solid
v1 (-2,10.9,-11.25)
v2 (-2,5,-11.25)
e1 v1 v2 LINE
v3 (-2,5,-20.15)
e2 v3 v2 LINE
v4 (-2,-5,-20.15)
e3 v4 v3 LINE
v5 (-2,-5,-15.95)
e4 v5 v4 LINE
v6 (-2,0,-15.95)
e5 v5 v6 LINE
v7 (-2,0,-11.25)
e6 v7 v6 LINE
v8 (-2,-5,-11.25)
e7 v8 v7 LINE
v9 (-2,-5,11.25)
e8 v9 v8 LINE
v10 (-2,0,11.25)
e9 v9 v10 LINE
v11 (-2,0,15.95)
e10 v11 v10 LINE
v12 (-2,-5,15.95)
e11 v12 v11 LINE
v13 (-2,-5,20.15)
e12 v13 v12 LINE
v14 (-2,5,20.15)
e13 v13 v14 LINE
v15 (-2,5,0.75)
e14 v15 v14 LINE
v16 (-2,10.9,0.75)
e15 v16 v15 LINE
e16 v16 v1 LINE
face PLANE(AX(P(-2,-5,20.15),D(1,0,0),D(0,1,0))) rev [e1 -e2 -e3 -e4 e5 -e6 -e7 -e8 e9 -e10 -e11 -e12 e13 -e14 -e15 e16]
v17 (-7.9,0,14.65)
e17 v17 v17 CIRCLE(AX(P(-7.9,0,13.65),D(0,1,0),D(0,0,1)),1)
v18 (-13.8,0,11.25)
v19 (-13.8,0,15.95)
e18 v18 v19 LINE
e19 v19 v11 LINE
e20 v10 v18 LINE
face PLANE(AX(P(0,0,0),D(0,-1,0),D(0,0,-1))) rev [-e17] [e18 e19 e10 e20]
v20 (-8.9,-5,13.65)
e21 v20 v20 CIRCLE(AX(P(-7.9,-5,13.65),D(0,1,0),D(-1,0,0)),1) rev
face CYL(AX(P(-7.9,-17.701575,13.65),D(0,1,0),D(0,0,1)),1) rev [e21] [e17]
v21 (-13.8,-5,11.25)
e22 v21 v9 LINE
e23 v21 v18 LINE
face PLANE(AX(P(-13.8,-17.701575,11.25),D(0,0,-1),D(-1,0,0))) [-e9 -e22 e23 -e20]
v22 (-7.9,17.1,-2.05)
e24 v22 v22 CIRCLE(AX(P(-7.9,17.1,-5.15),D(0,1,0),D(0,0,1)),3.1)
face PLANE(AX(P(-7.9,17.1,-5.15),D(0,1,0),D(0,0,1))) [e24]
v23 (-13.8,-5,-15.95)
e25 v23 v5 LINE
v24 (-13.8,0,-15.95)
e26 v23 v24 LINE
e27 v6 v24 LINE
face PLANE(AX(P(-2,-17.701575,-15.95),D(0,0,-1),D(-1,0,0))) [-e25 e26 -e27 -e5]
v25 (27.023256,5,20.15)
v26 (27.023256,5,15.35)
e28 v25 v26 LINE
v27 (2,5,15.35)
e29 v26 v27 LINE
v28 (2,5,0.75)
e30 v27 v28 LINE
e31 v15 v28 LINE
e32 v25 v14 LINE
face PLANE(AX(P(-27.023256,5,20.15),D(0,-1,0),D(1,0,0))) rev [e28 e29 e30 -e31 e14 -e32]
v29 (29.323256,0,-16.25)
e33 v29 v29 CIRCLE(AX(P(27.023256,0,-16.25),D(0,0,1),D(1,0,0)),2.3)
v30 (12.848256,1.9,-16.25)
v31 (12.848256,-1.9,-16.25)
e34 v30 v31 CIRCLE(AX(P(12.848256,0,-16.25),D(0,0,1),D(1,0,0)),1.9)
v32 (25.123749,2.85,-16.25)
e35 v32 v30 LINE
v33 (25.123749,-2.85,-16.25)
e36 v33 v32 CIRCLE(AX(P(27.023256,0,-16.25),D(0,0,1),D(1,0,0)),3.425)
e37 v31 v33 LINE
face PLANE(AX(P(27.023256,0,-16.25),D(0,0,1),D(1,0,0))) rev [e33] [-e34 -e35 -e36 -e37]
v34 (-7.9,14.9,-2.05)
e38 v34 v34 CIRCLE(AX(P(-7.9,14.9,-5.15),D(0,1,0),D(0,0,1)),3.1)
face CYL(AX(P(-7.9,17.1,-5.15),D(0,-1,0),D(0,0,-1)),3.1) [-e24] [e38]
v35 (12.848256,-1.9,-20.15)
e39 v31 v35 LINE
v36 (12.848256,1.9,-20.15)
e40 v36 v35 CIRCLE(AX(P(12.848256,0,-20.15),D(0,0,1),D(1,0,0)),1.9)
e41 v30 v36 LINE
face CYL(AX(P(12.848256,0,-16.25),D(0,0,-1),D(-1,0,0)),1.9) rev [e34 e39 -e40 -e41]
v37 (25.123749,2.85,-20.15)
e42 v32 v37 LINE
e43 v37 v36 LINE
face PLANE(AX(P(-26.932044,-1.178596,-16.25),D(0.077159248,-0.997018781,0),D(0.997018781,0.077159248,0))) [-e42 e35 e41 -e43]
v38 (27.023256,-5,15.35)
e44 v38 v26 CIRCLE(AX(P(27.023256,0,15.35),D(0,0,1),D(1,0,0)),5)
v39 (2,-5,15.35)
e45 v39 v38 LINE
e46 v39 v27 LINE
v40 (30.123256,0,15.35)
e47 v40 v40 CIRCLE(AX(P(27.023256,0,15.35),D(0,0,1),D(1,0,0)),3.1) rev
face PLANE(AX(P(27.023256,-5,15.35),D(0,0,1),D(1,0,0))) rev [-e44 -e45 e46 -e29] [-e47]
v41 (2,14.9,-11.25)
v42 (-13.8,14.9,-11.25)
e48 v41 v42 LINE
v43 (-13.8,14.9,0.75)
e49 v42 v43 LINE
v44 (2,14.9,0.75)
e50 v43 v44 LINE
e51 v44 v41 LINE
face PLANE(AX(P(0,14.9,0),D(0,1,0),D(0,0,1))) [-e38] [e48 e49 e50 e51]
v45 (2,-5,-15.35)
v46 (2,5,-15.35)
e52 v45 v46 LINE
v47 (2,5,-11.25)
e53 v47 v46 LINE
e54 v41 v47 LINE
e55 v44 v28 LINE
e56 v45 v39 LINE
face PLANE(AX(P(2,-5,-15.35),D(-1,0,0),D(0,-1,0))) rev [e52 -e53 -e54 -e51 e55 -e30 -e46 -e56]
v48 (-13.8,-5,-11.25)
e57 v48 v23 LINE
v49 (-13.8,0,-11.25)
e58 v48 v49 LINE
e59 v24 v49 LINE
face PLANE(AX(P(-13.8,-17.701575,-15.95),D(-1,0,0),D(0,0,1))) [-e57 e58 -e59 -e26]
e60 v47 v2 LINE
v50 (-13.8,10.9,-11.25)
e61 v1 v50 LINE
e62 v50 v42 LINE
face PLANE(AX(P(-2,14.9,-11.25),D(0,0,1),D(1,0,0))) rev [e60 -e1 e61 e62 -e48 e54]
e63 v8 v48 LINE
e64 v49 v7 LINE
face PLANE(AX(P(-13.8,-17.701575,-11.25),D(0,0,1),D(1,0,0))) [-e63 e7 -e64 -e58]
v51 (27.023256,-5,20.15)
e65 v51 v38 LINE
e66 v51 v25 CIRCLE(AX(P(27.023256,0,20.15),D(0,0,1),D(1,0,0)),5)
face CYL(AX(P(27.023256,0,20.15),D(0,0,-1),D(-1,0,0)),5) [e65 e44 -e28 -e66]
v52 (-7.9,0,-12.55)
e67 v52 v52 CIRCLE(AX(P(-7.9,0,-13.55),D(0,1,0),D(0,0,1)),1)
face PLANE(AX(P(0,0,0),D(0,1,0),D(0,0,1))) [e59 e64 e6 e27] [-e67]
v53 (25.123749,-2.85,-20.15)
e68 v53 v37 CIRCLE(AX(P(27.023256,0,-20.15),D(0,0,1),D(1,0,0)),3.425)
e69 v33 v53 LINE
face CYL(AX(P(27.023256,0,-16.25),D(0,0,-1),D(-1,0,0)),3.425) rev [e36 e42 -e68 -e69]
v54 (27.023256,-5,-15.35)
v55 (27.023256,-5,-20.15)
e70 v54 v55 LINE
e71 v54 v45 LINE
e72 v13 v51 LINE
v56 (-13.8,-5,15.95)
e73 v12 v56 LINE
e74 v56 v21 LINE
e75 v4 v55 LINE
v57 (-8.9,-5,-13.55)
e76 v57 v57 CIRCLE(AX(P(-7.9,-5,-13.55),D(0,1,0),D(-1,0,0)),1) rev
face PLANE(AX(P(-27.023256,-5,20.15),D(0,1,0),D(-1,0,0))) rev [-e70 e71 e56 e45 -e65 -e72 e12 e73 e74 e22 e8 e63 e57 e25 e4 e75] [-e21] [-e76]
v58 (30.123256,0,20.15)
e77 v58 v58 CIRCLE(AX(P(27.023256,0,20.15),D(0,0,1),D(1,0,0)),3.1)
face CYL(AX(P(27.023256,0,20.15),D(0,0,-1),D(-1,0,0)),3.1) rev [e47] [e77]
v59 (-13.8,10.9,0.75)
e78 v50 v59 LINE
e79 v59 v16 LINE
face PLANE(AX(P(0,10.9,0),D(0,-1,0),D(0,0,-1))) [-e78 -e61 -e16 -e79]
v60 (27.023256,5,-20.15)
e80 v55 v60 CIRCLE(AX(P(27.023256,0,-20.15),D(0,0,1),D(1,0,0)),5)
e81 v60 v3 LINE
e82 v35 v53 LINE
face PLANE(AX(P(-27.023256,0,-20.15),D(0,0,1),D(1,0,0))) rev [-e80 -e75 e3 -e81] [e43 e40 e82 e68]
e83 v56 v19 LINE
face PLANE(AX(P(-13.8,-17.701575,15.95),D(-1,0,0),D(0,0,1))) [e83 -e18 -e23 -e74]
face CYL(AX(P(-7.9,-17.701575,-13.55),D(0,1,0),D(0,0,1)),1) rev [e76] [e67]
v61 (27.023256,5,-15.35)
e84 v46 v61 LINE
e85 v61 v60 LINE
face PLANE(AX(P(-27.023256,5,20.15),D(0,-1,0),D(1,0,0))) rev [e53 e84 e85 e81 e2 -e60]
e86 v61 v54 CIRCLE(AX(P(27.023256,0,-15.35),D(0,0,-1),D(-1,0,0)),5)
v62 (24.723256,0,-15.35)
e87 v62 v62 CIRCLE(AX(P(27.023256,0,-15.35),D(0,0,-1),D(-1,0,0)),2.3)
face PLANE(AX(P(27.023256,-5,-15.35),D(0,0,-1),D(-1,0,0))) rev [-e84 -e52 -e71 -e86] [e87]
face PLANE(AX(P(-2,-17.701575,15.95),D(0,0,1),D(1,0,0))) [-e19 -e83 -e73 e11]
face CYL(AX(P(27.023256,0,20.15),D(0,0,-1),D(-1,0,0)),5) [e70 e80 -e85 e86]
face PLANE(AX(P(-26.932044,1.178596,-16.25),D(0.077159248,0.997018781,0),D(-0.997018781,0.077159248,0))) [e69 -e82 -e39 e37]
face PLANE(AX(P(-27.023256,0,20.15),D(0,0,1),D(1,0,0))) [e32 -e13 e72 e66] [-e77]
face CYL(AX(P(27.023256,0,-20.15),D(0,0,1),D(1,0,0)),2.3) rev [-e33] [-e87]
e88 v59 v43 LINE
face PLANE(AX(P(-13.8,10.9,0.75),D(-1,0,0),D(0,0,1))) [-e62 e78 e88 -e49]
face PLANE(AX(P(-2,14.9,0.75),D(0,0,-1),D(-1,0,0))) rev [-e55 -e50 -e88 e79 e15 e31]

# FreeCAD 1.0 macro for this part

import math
import FreeCAD as App
import Part
import Sketcher
from FreeCAD import Vector
Q = App.Units.Quantity


def add_polygon(sketch, points):
    """Adds a closed chain of lines whose ends are joined by coincident constraints."""
    first, n = sketch.GeometryCount, len(points)
    for a, b in zip(points, points[1:] + points[:1]):
        sketch.addGeometry(Part.LineSegment(App.Vector(*a, 0), App.Vector(*b, 0)), False)
    for i in range(n):
        sketch.addConstraint(Sketcher.Constraint("Coincident", first + i, 2, first + (i + 1) % n, 1))

doc = App.newDocument("Part")
body = doc.addObject("PartDesign::Body", "Body")

sketch1 = body.newObject("Sketcher::SketchObject", "Sketch")
sketch1.AttachmentSupport = (doc.getObject("XY_Plane"), [""])
sketch1.MapMode = "FlatFace"
sketch1.addGeometry([
    Part.LineSegment(Vector(27, 5, 0), Vector(-27, 5, 0)),
    Part.ArcOfCircle(Part.Circle(Vector(-27, 0, 0), Vector(0, 0, 1), 5), math.radians(90), math.radians(270)),
    Part.LineSegment(Vector(-27, -5, 0), Vector(27, -5, 0)),
    Part.ArcOfCircle(Part.Circle(Vector(27, 0, 0), Vector(0, 0, 1), 5), math.radians(-90), math.radians(90)),
], False)
sketch1.addConstraint([
    Sketcher.Constraint("Tangent", 0, 2, 1, 1),
    Sketcher.Constraint("Tangent", 1, 2, 2, 1),
    Sketcher.Constraint("Tangent", 2, 2, 3, 1),
    Sketcher.Constraint("Tangent", 3, 2, 0, 1),
    Sketcher.Constraint("Horizontal", 0),
    Sketcher.Constraint("Horizontal", 2),
    Sketcher.Constraint("Symmetric", 1, 3, 3, 3, -1, 1),
    Sketcher.Constraint("Radius", 1, Q("5 mm")),
    Sketcher.Constraint("DistanceX", 0, 2, 0, 1, Q("54.046512 mm")),
])
pad1 = body.newObject("PartDesign::Pad", "Pad")
pad1.Profile = sketch1
pad1.Length = 40.3
pad1.Midplane = True

sketch2 = body.newObject("Sketcher::SketchObject", "Sketch001")
sketch2.AttachmentSupport = (doc.getObject("XZ_Plane"), [""])
sketch2.MapMode = "FlatFace"
sketch2.AttachmentOffset = App.Placement(Vector(0, 0, -5), App.Rotation())
add_polygon(sketch2, [(-2, 20), (-2, -20), (-38, -20), (-38, 20)])
add_polygon(sketch2, [(38, -15), (2, -15), (2, 15), (38, 15)])
sketch2.addConstraint([
    Sketcher.Constraint("Vertical", 0),
    Sketcher.Constraint("Horizontal", 1),
    Sketcher.Constraint("Vertical", 2),
    Sketcher.Constraint("Horizontal", 3),
    Sketcher.Constraint("Horizontal", 4),
    Sketcher.Constraint("Vertical", 5),
    Sketcher.Constraint("Horizontal", 6),
    Sketcher.Constraint("Vertical", 7),
    Sketcher.Constraint("DistanceY", 0, 2, 0, 1, Q("40.3 mm")),
    Sketcher.Constraint("DistanceY", 5, 1, 5, 2, Q("30.7 mm")),
    Sketcher.Constraint("DistanceX", 0, 2, -1, 1, Q("2 mm")),
    Sketcher.Constraint("DistanceX", -1, 1, 4, 2, Q("2 mm")),
    Sketcher.Constraint("DistanceY", 0, 2, 4, 2, Q("4.8 mm")),
    Sketcher.Constraint("DistanceY", 0, 2, -1, 1, Q("20.15 mm")),
    Sketcher.Constraint("DistanceX", 4, 2, 4, 1, Q("36.058299 mm")),
    Sketcher.Constraint("DistanceX", 1, 2, 1, 1, Q("35.95202 mm")),
])
pocket1 = body.newObject("PartDesign::Pocket", "Pocket")
pocket1.Profile = sketch2
pocket1.Type = "ThroughAll"
pocket1.Midplane = True

sketch3 = body.newObject("Sketcher::SketchObject", "Sketch002")
sketch3.AttachmentSupport = (doc.getObject("XY_Plane"), [""])
sketch3.MapMode = "FlatFace"
sketch3.AttachmentOffset = App.Placement(Vector(0, 0, -20.15), App.Rotation())
sketch3.addGeometry([
    Part.LineSegment(Vector(25.1, 2.9, 0), Vector(12.8, 1.9, 0)),
    Part.ArcOfCircle(Part.Circle(Vector(12.8, 0, 0), Vector(0, 0, 1), 1.9), math.radians(90), math.radians(270)),
    Part.LineSegment(Vector(12.8, -1.9, 0), Vector(25.1, -2.9, 0)),
    Part.ArcOfCircle(Part.Circle(Vector(27, 0, 0), Vector(0, 0, 1), 3.4), math.radians(-124), math.radians(124)),
], False)
sketch3.addConstraint([
    Sketcher.Constraint("Coincident", 0, 2, 1, 1),
    Sketcher.Constraint("Coincident", 1, 2, 2, 1),
    Sketcher.Constraint("Coincident", 2, 2, 3, 1),
    Sketcher.Constraint("Coincident", 3, 2, 0, 1),
    Sketcher.Constraint("Symmetric", 0, 2, 1, 2, -1),
    Sketcher.Constraint("Symmetric", 2, 2, 3, 2, -1),
    Sketcher.Constraint("Vertical", 1, 3, 0, 2),
    Sketcher.Constraint("Radius", 1, Q("1.9 mm")),
    Sketcher.Constraint("Radius", 3, Q("3.425 mm")),
    Sketcher.Constraint("DistanceY", 2, 2, 3, 2, Q("5.7 mm")),
    Sketcher.Constraint("DistanceX", 1, 3, 3, 3, Q("14.175 mm")),
    Sketcher.Constraint("DistanceX", -1, 1, 2, 2, Q("25.123749 mm")),
])
pocket2 = body.newObject("PartDesign::Pocket", "Pocket001")
pocket2.Profile = sketch3
pocket2.Length = 3.9
pocket2.Reversed = True

sketch4 = body.newObject("Sketcher::SketchObject", "Sketch003")
sketch4.AttachmentSupport = (doc.getObject("XY_Plane"), [""])
sketch4.MapMode = "FlatFace"
sketch4.addGeometry(Part.Circle(Vector(27, 0, 0), Vector(0, 0, 1), 2.3), False)
sketch4.addConstraint([
    Sketcher.Constraint("PointOnObject", 0, 3, -1),
    Sketcher.Constraint("Diameter", 0, Q("4.6 mm")),
    Sketcher.Constraint("DistanceX", -1, 1, 0, 3, Q("27.023256 mm")),
])
pocket3 = body.newObject("PartDesign::Pocket", "Pocket002")
pocket3.Profile = sketch4
pocket3.Type = "ThroughAll"

sketch5 = body.newObject("Sketcher::SketchObject", "Sketch004")
sketch5.AttachmentSupport = (doc.getObject("XY_Plane"), [""])
sketch5.MapMode = "FlatFace"
sketch5.addGeometry(Part.Circle(Vector(27, 0, 0), Vector(0, 0, 1), 3.1), False)
sketch5.addConstraint([
    Sketcher.Constraint("PointOnObject", 0, 3, -1),
    Sketcher.Constraint("Diameter", 0, Q("6.2 mm")),
    Sketcher.Constraint("DistanceX", -1, 1, 0, 3, Q("27.023256 mm")),
])
pocket4 = body.newObject("PartDesign::Pocket", "Pocket003")
pocket4.Profile = sketch5
pocket4.Type = "ThroughAll"
pocket4.Reversed = True

sketch6 = body.newObject("Sketcher::SketchObject", "Sketch005")
sketch6.AttachmentSupport = (doc.getObject("XZ_Plane"), [""])
sketch6.MapMode = "FlatFace"
add_polygon(sketch6, [(-13.8, -15.9), (-13.8, -11.2), (-2, -11.2), (-2, -15.9)])
sketch6.addGeometry(Part.Circle(Vector(-7.9, -13.6, 0), Vector(0, 0, 1), 1), False)
add_polygon(sketch6, [(-13.8, 11.2), (-13.8, 15.9), (-2, 15.9), (-2, 11.2)])
sketch6.addGeometry(Part.Circle(Vector(-7.9, 13.7, 0), Vector(0, 0, 1), 1), False)
sketch6.addConstraint([
    Sketcher.Constraint("Vertical", 0),
    Sketcher.Constraint("Horizontal", 1),
    Sketcher.Constraint("Vertical", 2),
    Sketcher.Constraint("Horizontal", 3),
    Sketcher.Constraint("Vertical", 5),
    Sketcher.Constraint("Horizontal", 6),
    Sketcher.Constraint("Vertical", 7),
    Sketcher.Constraint("Horizontal", 8),
    Sketcher.Constraint("Equal", 4, 9),
    Sketcher.Constraint("Symmetric", 3, 2, 5, 2, -1),
    Sketcher.Constraint("Symmetric", 1, 2, 7, 2, -1),
    Sketcher.Constraint("Vertical", 4, 3, 9, 3),
    Sketcher.Constraint("Diameter", 4, Q("2 mm")),
    Sketcher.Constraint("DistanceX", 1, 1, 1, 2, Q("11.8 mm")),
    Sketcher.Constraint("DistanceY", 0, 1, 0, 2, Q("4.7 mm")),
    Sketcher.Constraint("DistanceX", 1, 2, -1, 1, Q("2 mm")),
    Sketcher.Constraint("DistanceX", 4, 3, -1, 1, Q("7.9 mm")),
    Sketcher.Constraint("DistanceY", 4, 3, 9, 3, Q("27.2 mm")),
    Sketcher.Constraint("DistanceY", 4, 3, 0, 2, Q("2.3 mm")),
    Sketcher.Constraint("DistanceY", 9, 3, 5, 2, Q("2.3 mm")),
])
pad2 = body.newObject("PartDesign::Pad", "Pad001")
pad2.Profile = sketch6
pad2.Length = 5

sketch7 = body.newObject("Sketcher::SketchObject", "Sketch006")
sketch7.AttachmentSupport = (doc.getObject("XZ_Plane"), [""])
sketch7.MapMode = "FlatFace"
sketch7.AttachmentOffset = App.Placement(Vector(0, 0, -5), App.Rotation())
add_polygon(sketch7, [(-2, -11.2), (-2, 0.8), (2, 0.8), (2, -11.2)])
sketch7.addConstraint([
    Sketcher.Constraint("Vertical", 0),
    Sketcher.Constraint("Horizontal", 1),
    Sketcher.Constraint("Vertical", 2),
    Sketcher.Constraint("Horizontal", 3),
    Sketcher.Constraint("DistanceX", 1, 1, 1, 2, Q("4 mm")),
    Sketcher.Constraint("DistanceY", 0, 1, 0, 2, Q("12 mm")),
    Sketcher.Constraint("DistanceX", 0, 2, -1, 1, Q("2 mm")),
    Sketcher.Constraint("DistanceY", -1, 1, 0, 2, Q("0.75 mm")),
])
pad3 = body.newObject("PartDesign::Pad", "Pad002")
pad3.Profile = sketch7
pad3.Length = 9.9
pad3.Reversed = True

sketch8 = body.newObject("Sketcher::SketchObject", "Sketch007")
sketch8.AttachmentSupport = (doc.getObject("XZ_Plane"), [""])
sketch8.MapMode = "FlatFace"
sketch8.AttachmentOffset = App.Placement(Vector(0, 0, -5), App.Rotation())
add_polygon(sketch8, [(-2, -11.2), (-2, 0.8), (2, 0.8), (2, -11.2)])
sketch8.addConstraint([
    Sketcher.Constraint("Vertical", 0),
    Sketcher.Constraint("Horizontal", 1),
    Sketcher.Constraint("Vertical", 2),
    Sketcher.Constraint("Horizontal", 3),
    Sketcher.Constraint("DistanceX", 1, 1, 1, 2, Q("4 mm")),
    Sketcher.Constraint("DistanceY", 0, 1, 0, 2, Q("12 mm")),
    Sketcher.Constraint("DistanceX", 0, 2, -1, 1, Q("2 mm")),
    Sketcher.Constraint("DistanceY", -1, 1, 0, 2, Q("0.75 mm")),
])
pad4 = body.newObject("PartDesign::Pad", "Pad003")
pad4.Profile = sketch8
pad4.Length = 9.9
pad4.Reversed = True

sketch9 = body.newObject("Sketcher::SketchObject", "Sketch008")
sketch9.AttachmentSupport = (doc.getObject("XZ_Plane"), [""])
sketch9.MapMode = "FlatFace"
sketch9.AttachmentOffset = App.Placement(Vector(0, 0, -14.9), App.Rotation())
add_polygon(sketch9, [(-14, -11), (-14, 1), (-2, 1), (-2, -11)])
sketch9.addConstraint([
    Sketcher.Constraint("Vertical", 0),
    Sketcher.Constraint("Horizontal", 1),
    Sketcher.Constraint("Vertical", 2),
    Sketcher.Constraint("Horizontal", 3),
    Sketcher.Constraint("DistanceY", 0, 1, 0, 2, Q("12 mm")),
    Sketcher.Constraint("DistanceX", 1, 1, 1, 2, Q("11.8 mm")),
    Sketcher.Constraint("DistanceX", 1, 2, -1, 1, Q("2 mm")),
    Sketcher.Constraint("DistanceY", -1, 1, 0, 2, Q("0.75 mm")),
])
pad5 = body.newObject("PartDesign::Pad", "Pad004")
pad5.Profile = sketch9
pad5.Length = 4

sketch10 = body.newObject("Sketcher::SketchObject", "Sketch009")
sketch10.AttachmentSupport = (doc.getObject("XZ_Plane"), [""])
sketch10.MapMode = "FlatFace"
sketch10.AttachmentOffset = App.Placement(Vector(0, 0, -14.9), App.Rotation())
sketch10.addGeometry(Part.Circle(Vector(-7.9, -5.2, 0), Vector(0, 0, 1), 3.1), False)
sketch10.addConstraint([
    Sketcher.Constraint("Diameter", 0, Q("6.2 mm")),
    Sketcher.Constraint("DistanceX", 0, 3, -1, 1, Q("7.9 mm")),
    Sketcher.Constraint("DistanceY", 0, 3, -1, 1, Q("5.15 mm")),
])
pad6 = body.newObject("PartDesign::Pad", "Pad005")
pad6.Profile = sketch10
pad6.Length = 2.2
pad6.Reversed = True

doc.recompute()
